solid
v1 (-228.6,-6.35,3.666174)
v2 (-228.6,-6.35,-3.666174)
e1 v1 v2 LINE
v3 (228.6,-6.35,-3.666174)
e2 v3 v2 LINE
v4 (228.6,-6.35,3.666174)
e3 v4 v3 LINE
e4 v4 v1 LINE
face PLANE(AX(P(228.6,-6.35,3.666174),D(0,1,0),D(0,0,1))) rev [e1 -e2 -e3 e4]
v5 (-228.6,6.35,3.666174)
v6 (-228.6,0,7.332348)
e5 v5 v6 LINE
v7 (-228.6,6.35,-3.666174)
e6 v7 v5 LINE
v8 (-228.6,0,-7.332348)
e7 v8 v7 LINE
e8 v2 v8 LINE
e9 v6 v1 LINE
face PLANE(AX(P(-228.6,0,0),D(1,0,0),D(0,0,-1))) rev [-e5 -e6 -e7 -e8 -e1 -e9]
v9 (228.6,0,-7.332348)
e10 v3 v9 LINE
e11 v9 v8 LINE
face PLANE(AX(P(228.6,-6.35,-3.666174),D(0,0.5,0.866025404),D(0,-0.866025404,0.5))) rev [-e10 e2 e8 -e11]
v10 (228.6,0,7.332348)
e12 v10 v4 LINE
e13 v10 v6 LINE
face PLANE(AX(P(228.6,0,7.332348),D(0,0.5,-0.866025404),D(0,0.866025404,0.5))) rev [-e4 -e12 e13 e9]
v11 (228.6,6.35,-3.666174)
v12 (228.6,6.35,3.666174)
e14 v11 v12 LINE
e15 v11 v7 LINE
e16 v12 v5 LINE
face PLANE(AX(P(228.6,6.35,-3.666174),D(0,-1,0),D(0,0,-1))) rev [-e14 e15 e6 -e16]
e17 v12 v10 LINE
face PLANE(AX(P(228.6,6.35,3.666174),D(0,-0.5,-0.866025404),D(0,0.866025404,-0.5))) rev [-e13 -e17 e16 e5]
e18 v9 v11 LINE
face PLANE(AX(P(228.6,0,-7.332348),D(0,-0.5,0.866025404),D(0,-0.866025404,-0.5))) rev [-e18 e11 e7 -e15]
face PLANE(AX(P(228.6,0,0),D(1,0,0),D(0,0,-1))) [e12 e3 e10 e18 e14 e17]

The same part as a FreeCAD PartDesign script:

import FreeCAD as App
import Part
import Sketcher

V = App.Vector
Q = App.Units.Quantity

doc = App.newDocument("Part")
body = doc.addObject("PartDesign::Body", "Body")

# Sketch on YZ plane
sketch1 = body.newObject("Sketcher::SketchObject", "Sketch")
sketch1.AttachmentSupport = (doc.getObject("YZ_Plane"), [""])
sketch1.MapMode = "FlatFace"
sketch1.addGeometry([
    Part.LineSegment(V(0, -7, 0), V(6, -4, 0)),  # 0
    Part.LineSegment(V(6, -4, 0), V(6, 4, 0)),  # 1
    Part.LineSegment(V(6, 4, 0), V(0, 7, 0)),  # 2
    Part.LineSegment(V(0, 7, 0), V(-6, 4, 0)),  # 3
    Part.LineSegment(V(-6, 4, 0), V(-6, -4, 0)),  # 4
    Part.LineSegment(V(-6, -4, 0), V(0, -7, 0)),  # 5
], False)
sketch1.addConstraint([
    Sketcher.Constraint("Coincident", 0, 2, 1, 1),
    Sketcher.Constraint("Coincident", 1, 2, 2, 1),
    Sketcher.Constraint("Coincident", 2, 2, 3, 1),
    Sketcher.Constraint("Coincident", 3, 2, 4, 1),
    Sketcher.Constraint("Coincident", 4, 2, 5, 1),
    Sketcher.Constraint("Coincident", 5, 2, 0, 1),
    Sketcher.Constraint("Vertical", 1),
    Sketcher.Constraint("Vertical", 4),
    Sketcher.Constraint("Symmetric", 0, 2, 3, 2, -1, 1),
    Sketcher.Constraint("Symmetric", 2, 2, 5, 2, -1, 1),
    Sketcher.Constraint("PointOnObject", 2, 2, -2),
    Sketcher.Constraint("Parallel", 2, 5),
    Sketcher.Constraint("Horizontal", 1, 2, 3, 2),
    Sketcher.Constraint("Angle", 0, Q("30 deg")),
    Sketcher.Constraint("DistanceX", 3, 2, 1, 2, Q("0.5 in")),
    Sketcher.Constraint("DistanceY", 1, 1, 1, 2, Q("7.332348 mm")),
])
pad1 = body.newObject("PartDesign::Pad", "Pad")
pad1.Profile = sketch1
pad1.Length = Q("18 in")
pad1.Midplane = True

doc.recompute()
